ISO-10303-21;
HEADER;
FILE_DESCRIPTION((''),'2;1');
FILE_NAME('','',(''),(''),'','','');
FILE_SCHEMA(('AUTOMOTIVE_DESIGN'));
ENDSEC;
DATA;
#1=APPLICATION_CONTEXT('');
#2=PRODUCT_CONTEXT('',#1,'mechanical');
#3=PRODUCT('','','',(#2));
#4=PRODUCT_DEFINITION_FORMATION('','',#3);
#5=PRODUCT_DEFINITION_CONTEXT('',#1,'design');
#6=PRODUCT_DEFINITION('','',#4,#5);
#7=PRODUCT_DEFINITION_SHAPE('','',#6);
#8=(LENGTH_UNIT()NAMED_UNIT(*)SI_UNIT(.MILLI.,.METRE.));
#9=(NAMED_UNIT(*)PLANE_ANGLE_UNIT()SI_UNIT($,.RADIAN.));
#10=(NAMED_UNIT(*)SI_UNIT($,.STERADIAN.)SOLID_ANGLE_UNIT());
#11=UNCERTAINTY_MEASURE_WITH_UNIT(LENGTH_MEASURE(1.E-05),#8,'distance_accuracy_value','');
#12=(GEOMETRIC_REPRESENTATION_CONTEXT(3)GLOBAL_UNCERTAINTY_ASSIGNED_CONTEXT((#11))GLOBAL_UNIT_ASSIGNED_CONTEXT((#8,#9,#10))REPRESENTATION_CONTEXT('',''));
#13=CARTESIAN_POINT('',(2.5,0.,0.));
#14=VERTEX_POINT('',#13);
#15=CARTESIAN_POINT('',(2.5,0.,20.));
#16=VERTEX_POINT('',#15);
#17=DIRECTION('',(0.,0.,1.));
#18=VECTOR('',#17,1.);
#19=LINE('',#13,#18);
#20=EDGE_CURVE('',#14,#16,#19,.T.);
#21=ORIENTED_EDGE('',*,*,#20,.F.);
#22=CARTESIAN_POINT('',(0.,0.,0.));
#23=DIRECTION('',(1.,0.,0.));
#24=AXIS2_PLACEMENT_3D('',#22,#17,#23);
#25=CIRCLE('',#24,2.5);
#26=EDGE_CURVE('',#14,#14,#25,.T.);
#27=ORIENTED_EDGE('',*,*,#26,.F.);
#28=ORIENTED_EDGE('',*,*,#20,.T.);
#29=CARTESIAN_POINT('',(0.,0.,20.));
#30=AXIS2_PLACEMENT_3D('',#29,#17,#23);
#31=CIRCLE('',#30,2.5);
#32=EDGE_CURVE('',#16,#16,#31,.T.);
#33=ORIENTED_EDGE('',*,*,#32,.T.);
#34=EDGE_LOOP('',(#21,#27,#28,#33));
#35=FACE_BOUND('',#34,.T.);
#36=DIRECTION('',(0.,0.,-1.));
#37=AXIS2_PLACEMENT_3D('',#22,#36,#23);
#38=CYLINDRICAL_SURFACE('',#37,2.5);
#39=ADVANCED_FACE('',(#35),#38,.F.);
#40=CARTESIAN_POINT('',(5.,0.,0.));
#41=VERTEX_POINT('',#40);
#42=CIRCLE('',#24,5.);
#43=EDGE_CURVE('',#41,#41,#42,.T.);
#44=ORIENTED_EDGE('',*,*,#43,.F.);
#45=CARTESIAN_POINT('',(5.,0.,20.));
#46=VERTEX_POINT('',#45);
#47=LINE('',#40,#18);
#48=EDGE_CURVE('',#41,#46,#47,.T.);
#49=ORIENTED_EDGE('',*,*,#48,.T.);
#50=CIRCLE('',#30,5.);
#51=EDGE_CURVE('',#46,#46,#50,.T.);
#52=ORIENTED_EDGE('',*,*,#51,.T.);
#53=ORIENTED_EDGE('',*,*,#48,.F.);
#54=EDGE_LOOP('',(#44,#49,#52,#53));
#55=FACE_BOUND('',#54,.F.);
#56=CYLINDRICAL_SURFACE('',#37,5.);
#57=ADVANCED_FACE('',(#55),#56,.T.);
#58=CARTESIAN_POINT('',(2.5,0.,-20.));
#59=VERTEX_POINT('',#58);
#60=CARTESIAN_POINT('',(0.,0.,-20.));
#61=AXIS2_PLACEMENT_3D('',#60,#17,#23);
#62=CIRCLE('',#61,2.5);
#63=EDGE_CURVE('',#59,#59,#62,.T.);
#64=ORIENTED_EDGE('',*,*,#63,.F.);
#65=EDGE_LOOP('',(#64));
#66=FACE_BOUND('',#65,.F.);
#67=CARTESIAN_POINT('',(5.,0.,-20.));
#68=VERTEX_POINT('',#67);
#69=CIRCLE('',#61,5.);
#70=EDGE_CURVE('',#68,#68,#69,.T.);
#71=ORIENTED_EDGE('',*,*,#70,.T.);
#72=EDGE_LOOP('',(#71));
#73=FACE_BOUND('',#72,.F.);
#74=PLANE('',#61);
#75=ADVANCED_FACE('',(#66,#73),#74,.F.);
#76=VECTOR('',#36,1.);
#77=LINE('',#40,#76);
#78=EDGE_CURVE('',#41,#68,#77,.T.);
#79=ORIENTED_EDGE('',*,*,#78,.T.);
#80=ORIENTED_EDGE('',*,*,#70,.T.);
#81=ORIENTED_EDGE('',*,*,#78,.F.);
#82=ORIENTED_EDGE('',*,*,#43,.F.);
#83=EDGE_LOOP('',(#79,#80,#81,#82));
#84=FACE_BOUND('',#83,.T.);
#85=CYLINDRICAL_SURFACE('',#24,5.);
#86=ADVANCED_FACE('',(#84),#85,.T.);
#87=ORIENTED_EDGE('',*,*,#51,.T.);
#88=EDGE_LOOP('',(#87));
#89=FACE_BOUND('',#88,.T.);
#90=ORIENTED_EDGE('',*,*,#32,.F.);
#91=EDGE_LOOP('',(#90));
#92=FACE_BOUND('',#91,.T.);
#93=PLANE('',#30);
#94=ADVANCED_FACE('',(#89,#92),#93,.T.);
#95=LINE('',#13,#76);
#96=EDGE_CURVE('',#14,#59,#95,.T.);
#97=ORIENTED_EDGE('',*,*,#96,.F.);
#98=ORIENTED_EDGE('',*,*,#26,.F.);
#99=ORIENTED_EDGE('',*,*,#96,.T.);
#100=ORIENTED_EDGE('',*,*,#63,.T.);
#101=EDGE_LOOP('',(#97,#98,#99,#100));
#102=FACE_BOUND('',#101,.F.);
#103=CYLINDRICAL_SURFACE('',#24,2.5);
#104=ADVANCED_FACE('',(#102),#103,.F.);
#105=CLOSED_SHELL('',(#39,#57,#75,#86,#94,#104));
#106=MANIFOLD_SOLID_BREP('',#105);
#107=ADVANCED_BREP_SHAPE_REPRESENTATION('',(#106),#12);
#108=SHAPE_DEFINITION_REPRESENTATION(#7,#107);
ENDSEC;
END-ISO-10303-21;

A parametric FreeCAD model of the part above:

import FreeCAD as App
import Part
import Sketcher
from FreeCAD import Vector
Q = App.Units.Quantity

doc = App.newDocument("Part")
params = doc.addObject("Spreadsheet::Sheet", "Params")
for row, (alias, value) in enumerate([
    ("sketch1_diameter", "10 mm"),
    ("sketch1_diameter2", "5 mm"),
    ("pad1_length", "40 mm"),
], start=1):
    params.set(f"A{row}", alias)
    params.set(f"B{row}", "=" + value)
    params.setAlias(f"B{row}", alias)

body = doc.addObject("PartDesign::Body", "Body")

# Sketch on XY plane
sketch1 = body.newObject("Sketcher::SketchObject", "Sketch")
sketch1.AttachmentSupport = (doc.getObject("XY_Plane"), [""])
sketch1.MapMode = "FlatFace"
sketch1.addGeometry([
    Part.Circle(Vector(0, 0, 0), Vector(0, 0, 1), 5),
    Part.Circle(Vector(0, 0, 0), Vector(0, 0, 1), 2.5),
], False)
sketch1.addConstraint([
    Sketcher.Constraint("Coincident", 0, 3, -1, 1),
    Sketcher.Constraint("Coincident", 1, 3, -1, 1),
    Sketcher.Constraint("Diameter", 0, Q("10 mm")),
    Sketcher.Constraint("Diameter", 1, Q("5 mm")),
])
sketch1.setExpression("Constraints[2]", "Params.sketch1_diameter")
sketch1.setExpression("Constraints[3]", "Params.sketch1_diameter2")
pad1 = body.newObject("PartDesign::Pad", "Pad")
pad1.Profile = sketch1
pad1.setExpression("Length", "Params.pad1_length")
pad1.Midplane = True

doc.recompute()
